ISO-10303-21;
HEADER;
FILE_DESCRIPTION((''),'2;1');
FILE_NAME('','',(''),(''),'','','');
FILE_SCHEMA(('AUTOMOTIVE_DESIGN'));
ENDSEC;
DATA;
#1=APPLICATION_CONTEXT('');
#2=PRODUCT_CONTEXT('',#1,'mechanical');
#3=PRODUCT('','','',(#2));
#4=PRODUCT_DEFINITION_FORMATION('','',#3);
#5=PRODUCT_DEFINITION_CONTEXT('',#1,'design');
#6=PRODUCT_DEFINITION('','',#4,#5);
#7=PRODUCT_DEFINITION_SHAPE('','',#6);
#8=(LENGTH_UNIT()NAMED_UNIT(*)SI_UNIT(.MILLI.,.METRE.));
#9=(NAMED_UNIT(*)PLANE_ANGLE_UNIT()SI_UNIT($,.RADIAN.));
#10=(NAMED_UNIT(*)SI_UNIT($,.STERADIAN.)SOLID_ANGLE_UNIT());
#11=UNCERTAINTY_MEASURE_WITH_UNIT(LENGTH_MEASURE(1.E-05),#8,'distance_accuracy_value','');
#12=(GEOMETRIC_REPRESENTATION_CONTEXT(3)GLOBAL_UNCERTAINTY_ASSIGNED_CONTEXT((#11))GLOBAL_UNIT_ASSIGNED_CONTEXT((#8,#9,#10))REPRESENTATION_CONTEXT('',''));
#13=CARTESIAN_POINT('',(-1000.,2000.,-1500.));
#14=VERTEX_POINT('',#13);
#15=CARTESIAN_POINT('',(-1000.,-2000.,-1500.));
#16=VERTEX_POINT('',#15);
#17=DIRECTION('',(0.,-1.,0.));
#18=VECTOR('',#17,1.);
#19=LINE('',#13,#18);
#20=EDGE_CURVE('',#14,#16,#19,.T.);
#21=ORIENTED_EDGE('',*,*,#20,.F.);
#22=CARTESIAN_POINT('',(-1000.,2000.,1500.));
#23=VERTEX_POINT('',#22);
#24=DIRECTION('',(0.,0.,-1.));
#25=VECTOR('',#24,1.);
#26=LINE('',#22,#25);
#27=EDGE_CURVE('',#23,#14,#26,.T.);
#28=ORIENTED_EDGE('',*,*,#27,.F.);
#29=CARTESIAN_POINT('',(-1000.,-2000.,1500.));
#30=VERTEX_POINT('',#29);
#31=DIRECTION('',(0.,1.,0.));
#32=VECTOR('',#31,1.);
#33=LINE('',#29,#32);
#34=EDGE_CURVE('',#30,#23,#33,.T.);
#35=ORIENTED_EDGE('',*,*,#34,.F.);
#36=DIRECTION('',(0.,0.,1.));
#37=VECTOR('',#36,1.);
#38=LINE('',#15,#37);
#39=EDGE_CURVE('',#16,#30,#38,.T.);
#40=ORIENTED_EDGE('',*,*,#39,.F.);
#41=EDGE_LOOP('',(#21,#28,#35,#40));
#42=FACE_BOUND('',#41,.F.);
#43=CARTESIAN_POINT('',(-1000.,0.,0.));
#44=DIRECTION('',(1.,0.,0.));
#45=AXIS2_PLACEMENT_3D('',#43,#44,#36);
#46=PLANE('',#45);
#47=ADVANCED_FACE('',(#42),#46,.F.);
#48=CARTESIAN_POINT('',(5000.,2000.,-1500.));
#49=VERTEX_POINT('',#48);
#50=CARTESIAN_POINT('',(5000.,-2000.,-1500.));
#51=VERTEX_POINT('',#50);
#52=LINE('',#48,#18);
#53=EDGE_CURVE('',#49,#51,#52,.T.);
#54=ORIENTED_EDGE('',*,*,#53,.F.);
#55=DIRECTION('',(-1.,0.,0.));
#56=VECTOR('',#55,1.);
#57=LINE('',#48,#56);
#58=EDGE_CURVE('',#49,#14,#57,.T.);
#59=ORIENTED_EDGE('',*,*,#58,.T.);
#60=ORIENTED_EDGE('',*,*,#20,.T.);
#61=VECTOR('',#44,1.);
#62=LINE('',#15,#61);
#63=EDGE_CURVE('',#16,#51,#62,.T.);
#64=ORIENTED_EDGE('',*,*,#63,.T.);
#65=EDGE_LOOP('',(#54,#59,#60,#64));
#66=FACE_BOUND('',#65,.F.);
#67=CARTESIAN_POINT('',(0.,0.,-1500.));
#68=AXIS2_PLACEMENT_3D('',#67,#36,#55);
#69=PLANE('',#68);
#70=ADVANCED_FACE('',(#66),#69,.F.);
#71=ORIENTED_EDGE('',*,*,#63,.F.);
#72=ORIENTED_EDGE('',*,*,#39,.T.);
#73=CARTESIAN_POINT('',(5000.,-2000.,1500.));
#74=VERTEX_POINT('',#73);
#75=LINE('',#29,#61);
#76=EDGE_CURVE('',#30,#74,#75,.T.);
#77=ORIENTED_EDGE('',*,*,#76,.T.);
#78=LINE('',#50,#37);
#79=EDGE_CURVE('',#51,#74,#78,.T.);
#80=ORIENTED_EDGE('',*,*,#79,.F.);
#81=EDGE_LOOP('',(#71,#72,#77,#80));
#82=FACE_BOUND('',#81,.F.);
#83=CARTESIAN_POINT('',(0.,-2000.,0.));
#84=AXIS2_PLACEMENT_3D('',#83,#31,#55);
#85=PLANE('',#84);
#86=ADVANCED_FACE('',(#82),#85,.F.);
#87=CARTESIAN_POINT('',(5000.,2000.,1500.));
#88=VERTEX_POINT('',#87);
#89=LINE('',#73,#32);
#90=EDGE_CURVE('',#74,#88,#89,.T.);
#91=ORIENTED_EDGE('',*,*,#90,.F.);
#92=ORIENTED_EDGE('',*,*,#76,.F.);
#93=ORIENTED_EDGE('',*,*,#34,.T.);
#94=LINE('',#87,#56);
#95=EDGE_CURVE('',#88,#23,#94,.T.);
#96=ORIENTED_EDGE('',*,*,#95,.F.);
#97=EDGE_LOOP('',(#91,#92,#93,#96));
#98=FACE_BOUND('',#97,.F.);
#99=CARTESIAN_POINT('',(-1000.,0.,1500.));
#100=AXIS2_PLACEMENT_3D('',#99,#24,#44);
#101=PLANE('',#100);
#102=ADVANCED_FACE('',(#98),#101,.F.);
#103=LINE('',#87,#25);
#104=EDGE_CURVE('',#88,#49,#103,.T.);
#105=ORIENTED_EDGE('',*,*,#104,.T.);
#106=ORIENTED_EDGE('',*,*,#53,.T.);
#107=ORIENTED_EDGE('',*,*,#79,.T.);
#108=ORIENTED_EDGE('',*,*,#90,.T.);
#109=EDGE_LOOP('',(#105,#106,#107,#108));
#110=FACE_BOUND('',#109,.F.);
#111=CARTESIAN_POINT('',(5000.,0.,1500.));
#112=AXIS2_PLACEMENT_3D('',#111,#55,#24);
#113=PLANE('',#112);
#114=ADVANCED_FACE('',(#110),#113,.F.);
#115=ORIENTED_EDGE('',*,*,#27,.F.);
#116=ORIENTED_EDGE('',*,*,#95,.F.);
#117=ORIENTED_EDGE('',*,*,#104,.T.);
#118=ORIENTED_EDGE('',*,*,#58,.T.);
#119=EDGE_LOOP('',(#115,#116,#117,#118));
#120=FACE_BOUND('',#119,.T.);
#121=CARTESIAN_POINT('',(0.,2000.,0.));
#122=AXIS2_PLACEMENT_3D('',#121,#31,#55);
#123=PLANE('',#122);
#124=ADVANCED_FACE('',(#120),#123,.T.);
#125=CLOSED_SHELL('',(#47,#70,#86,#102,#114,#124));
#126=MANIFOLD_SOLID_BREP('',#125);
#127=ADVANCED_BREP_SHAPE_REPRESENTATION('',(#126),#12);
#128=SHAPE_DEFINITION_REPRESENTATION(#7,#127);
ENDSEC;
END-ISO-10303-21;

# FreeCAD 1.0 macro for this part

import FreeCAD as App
import Part
import Sketcher
from FreeCAD import Vector

doc = App.newDocument("Part")
body = doc.addObject("PartDesign::Body", "Body")

# Sketch on XZ plane
sketch1 = doc.addObject("Sketcher::SketchObject", "Sketch")
body.addObject(sketch1)
sketch1.AttachmentSupport = (doc.XZ_Plane, [""])
sketch1.MapMode = "FlatFace"
sketch1.addGeometry(Part.LineSegment(Vector(-1000, 1500, 0), Vector(5000, 1500, 0)), False)
sketch1.addGeometry(Part.LineSegment(Vector(5000, 1500, 0), Vector(5000, -1500, 0)), False)
sketch1.addGeometry(Part.LineSegment(Vector(5000, -1500, 0), Vector(-1000, -1500, 0)), False)
sketch1.addGeometry(Part.LineSegment(Vector(-1000, -1500, 0), Vector(-1000, 1500, 0)), False)
sketch1.addConstraint(Sketcher.Constraint("Coincident", 0, 2, 1, 1))
sketch1.addConstraint(Sketcher.Constraint("Coincident", 1, 2, 2, 1))
sketch1.addConstraint(Sketcher.Constraint("Coincident", 2, 2, 3, 1))
sketch1.addConstraint(Sketcher.Constraint("Coincident", 3, 2, 0, 1))
sketch1.addConstraint(Sketcher.Constraint("Horizontal", 0))
sketch1.addConstraint(Sketcher.Constraint("Vertical", 1))
sketch1.addConstraint(Sketcher.Constraint("Horizontal", 2))
sketch1.addConstraint(Sketcher.Constraint("Vertical", 3))
sketch1.addConstraint(Sketcher.Constraint("DistanceX", 0, 1, 0, 2, 6000.0))
sketch1.addConstraint(Sketcher.Constraint("DistanceY", 1, 2, 1, 1, 3000.0))
sketch1.addConstraint(Sketcher.Constraint("DistanceX", 2, 2, -1, 1, 1000.0))
sketch1.addConstraint(Sketcher.Constraint("DistanceY", -1, 1, 0, 2, 1500.0))
pad1 = doc.addObject("PartDesign::Pad", "Pad")
body.addObject(pad1)
pad1.Profile = sketch1
pad1.Length = 4000
pad1.Midplane = True

doc.recompute()
